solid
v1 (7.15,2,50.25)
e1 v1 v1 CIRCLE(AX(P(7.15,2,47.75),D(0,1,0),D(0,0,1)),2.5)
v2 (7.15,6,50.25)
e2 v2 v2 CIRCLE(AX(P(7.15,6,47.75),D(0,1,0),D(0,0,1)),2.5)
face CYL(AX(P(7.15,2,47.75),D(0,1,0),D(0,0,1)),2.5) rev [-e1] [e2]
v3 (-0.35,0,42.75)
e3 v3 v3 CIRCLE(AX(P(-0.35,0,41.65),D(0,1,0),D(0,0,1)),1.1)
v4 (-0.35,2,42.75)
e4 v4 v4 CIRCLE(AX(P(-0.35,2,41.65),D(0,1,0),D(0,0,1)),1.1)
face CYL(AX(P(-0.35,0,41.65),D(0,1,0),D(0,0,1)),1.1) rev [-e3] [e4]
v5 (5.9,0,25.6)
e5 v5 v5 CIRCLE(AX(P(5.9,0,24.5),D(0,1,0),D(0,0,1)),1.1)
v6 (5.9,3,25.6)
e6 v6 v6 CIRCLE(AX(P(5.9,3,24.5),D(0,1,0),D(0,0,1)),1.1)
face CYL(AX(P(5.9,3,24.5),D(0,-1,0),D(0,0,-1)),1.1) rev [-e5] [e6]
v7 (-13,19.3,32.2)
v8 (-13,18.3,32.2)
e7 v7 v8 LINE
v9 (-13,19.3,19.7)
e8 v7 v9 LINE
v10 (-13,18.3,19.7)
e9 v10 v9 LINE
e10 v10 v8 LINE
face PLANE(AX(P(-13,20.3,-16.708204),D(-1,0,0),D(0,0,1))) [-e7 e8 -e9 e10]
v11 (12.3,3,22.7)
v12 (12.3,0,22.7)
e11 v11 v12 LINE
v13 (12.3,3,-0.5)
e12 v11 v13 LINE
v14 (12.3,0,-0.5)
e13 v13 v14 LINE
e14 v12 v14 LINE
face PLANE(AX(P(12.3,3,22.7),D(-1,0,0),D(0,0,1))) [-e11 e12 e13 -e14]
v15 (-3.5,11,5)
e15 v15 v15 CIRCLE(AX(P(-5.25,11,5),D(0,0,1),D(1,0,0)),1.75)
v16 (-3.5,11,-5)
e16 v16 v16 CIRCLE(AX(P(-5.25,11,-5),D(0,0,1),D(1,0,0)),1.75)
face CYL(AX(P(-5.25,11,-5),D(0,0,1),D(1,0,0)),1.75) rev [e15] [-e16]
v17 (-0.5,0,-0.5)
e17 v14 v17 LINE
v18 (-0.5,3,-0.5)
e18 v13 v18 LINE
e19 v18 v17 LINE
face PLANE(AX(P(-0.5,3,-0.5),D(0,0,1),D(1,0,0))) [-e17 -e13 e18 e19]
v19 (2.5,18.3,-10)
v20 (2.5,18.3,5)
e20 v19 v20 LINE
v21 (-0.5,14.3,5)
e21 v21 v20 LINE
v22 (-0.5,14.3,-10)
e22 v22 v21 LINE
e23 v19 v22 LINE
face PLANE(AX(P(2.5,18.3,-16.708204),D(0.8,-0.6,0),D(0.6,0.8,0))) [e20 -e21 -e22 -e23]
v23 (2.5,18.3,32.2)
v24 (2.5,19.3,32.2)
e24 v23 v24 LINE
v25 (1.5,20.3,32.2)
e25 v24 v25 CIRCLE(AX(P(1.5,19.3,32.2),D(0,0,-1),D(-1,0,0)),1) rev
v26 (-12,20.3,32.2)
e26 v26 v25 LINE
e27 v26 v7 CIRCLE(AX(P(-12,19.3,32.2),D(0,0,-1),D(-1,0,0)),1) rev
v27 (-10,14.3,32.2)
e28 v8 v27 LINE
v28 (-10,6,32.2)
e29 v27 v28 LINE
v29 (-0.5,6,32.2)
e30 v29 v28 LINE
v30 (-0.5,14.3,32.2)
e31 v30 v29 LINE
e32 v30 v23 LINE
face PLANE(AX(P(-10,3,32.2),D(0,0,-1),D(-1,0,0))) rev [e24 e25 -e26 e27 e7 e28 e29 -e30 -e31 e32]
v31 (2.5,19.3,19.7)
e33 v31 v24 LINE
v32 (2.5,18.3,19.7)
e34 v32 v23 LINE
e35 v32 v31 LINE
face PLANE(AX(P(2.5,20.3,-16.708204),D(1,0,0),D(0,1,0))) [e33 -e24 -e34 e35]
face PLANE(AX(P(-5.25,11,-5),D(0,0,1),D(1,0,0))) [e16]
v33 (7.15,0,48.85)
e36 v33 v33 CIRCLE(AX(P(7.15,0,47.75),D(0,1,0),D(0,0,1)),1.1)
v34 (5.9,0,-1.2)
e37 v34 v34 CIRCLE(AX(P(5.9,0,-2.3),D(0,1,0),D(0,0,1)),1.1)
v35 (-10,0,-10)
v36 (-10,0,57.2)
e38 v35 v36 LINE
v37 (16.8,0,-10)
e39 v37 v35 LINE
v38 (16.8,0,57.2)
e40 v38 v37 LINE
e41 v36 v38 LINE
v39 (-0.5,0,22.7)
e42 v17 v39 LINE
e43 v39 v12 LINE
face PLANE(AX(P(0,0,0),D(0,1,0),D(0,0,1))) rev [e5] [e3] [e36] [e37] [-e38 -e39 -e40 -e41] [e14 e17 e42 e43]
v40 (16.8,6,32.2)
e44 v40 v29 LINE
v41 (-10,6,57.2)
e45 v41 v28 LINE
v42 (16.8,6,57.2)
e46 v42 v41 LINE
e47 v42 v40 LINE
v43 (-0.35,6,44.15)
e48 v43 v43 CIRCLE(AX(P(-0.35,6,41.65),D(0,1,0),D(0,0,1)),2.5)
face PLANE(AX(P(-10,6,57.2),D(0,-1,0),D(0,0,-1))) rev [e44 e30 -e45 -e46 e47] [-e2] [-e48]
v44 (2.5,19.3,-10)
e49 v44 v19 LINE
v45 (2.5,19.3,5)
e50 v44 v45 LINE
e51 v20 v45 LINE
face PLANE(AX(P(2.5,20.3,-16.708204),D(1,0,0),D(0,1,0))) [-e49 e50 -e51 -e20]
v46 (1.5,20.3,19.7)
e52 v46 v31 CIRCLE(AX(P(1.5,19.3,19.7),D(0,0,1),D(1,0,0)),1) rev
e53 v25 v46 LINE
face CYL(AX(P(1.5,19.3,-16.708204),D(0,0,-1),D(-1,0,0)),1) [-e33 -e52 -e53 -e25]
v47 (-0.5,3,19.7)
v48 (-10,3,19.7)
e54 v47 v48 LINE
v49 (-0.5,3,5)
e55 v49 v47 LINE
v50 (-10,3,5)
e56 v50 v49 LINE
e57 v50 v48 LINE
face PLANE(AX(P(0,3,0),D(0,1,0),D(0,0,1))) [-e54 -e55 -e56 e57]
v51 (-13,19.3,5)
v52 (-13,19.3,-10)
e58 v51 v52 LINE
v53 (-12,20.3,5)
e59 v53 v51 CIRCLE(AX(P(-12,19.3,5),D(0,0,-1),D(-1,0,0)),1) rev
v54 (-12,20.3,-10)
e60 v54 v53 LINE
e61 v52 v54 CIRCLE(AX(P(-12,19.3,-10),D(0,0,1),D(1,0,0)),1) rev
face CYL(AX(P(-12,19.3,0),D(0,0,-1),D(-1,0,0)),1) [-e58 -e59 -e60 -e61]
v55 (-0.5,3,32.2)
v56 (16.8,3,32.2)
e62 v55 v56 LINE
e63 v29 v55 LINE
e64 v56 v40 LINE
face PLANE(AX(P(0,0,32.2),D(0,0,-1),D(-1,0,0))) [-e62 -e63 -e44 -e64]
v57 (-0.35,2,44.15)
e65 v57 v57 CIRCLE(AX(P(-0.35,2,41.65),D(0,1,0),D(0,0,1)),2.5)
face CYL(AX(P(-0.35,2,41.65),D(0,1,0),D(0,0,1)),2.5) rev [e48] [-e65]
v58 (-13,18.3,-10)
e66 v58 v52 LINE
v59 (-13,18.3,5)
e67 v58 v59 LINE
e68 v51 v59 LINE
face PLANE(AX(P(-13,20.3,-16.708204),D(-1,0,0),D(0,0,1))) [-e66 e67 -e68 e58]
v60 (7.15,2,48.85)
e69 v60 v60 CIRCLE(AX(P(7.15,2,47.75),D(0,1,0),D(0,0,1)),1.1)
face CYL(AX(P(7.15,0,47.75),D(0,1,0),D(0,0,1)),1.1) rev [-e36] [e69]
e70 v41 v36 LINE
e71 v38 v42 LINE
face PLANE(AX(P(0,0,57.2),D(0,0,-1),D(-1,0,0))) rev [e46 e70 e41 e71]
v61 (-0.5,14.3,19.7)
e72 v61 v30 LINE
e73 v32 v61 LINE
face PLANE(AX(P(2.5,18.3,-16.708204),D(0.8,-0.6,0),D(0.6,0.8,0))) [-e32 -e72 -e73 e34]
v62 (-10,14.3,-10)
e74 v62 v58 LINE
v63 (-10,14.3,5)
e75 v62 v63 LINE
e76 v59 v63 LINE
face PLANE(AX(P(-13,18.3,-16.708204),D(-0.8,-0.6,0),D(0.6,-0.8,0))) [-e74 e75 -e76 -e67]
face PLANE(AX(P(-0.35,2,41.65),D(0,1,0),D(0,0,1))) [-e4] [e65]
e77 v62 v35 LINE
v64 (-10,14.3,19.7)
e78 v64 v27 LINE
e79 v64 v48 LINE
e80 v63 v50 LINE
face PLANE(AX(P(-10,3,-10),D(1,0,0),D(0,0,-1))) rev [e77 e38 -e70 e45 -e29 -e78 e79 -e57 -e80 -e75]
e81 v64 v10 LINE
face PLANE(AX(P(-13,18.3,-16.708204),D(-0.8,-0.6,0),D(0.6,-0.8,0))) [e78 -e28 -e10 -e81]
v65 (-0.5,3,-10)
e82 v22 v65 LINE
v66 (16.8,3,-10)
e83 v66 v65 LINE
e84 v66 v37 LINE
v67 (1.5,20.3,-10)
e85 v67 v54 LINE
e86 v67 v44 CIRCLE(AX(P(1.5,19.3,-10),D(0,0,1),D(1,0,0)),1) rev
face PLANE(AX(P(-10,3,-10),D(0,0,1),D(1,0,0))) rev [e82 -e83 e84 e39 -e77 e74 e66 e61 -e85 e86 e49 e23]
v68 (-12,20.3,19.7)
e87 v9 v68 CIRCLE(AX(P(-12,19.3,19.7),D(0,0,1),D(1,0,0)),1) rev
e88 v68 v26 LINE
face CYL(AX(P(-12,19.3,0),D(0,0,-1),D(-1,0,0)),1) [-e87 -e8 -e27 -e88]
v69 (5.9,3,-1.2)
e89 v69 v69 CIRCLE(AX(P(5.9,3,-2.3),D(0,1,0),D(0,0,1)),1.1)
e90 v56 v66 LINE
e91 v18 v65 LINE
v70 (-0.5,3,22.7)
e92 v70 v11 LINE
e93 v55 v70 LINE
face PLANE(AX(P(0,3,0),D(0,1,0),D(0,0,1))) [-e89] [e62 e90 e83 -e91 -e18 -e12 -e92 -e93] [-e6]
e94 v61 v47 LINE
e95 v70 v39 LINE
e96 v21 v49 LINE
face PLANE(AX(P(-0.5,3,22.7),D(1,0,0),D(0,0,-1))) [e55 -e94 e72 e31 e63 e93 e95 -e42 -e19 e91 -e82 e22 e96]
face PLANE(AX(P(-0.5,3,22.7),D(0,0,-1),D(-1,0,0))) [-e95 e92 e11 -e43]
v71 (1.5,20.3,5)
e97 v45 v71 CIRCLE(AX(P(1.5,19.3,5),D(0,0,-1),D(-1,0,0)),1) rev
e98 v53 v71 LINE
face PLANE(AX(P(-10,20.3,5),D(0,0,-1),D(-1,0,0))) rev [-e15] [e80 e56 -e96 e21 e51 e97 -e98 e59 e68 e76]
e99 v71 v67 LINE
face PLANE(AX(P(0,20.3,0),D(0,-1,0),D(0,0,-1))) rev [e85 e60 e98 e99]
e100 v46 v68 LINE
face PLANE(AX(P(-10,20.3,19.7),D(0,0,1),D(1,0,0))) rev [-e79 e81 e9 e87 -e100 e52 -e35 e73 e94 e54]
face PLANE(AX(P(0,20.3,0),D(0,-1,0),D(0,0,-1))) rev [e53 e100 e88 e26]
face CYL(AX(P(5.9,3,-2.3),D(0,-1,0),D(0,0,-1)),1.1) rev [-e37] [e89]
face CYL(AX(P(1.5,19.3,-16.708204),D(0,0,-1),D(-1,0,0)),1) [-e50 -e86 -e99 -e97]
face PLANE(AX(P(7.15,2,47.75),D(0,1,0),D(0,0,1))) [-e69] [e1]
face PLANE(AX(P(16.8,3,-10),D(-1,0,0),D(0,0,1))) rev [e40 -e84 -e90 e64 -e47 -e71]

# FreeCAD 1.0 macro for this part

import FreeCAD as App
import Part
import Sketcher
from FreeCAD import Vector
Q = App.Units.Quantity


def edges_at(feature, points):
    """Names of the edges that pass closest to the given points."""
    edges = feature.Shape.Edges
    near = lambda p: min(range(len(edges)), key=lambda i: edges[i].distToShape(Part.Vertex(*p))[0])
    return sorted({f"Edge{near(p) + 1}" for p in points})

doc = App.newDocument("Part")
params = doc.addObject("Spreadsheet::Sheet", "Params")
for row, (alias, value) in enumerate([
    ("sketch1_diameter", "2.2 mm"),
    ("sketch1_width", "26.8 mm"),
    ("sketch1_width2", "12.8 mm"),
    ("sketch1_height", "42.2 mm"),
    ("sketch1_height2", "23.2 mm"),
    ("pad1_length", "3 mm"),
    ("sketch2_height", "15 mm"),
    ("sketch2_width", "9.5 mm"),
    ("sketch2_height2", "12.5 mm"),
    ("pad2_length", "17.3 mm"),
    ("sketch3_diameter", "3.5 mm"),
    ("pocket1_length", "10 mm"),
    ("sketch4_width", "3 mm"),
    ("sketch4_height", "6 mm"),
    ("sketch4_height2", "2 mm"),
    ("pad3_length", "42.2 mm"),
    ("sketch5_width", "15.5 mm"),
    ("sketch5_height", "14.7 mm"),
    ("pocket2_length", "17.3 mm"),
    ("fillet_radius", "1 mm"),
    ("sketch6_height", "6 mm"),
    ("sketch6_width", "26.8 mm"),
    ("pad4_length", "25 mm"),
    ("sketch7_diameter", "5 mm"),
    ("pocket3_length", "4 mm"),
    ("sketch8_diameter", "2.2 mm"),
], start=1):
    params.set(f"A{row}", alias)
    params.set(f"B{row}", "=" + value)
    params.setAlias(f"B{row}", alias)

body = doc.addObject("PartDesign::Body", "Body")

# Sketch on XZ plane
sketch1 = doc.addObject("Sketcher::SketchObject", "Sketch")
body.addObject(sketch1)
sketch1.AttachmentSupport = (doc.XZ_Plane, [""])
sketch1.MapMode = "FlatFace"
sketch1.addGeometry([
    Part.LineSegment(Vector(-10, -10, 0), Vector(-10, 32.2, 0)),  # 0
    Part.LineSegment(Vector(-10, 32.2, 0), Vector(16.8, 32.2, 0)),  # 1
    Part.LineSegment(Vector(16.8, 32.2, 0), Vector(16.8, -10, 0)),  # 2
    Part.LineSegment(Vector(16.8, -10, 0), Vector(-10, -10, 0)),  # 3
    Part.Circle(Vector(5.9, 24.5, 0), Vector(0, 0, 1), 1.1),  # 4
    Part.LineSegment(Vector(12.3, 22.7, 0), Vector(-0.5, 22.7, 0)),  # 5
    Part.LineSegment(Vector(-0.5, 22.7, 0), Vector(-0.5, -0.5, 0)),  # 6
    Part.LineSegment(Vector(-0.5, -0.5, 0), Vector(12.3, -0.5, 0)),  # 7
    Part.LineSegment(Vector(12.3, -0.5, 0), Vector(12.3, 22.7, 0)),  # 8
    Part.Circle(Vector(5.9, -2.3, 0), Vector(0, 0, 1), 1.1),  # 9
], False)
sketch1.addConstraint([
    Sketcher.Constraint("Coincident", 0, 2, 1, 1),
    Sketcher.Constraint("Coincident", 1, 2, 2, 1),
    Sketcher.Constraint("Coincident", 2, 2, 3, 1),
    Sketcher.Constraint("Coincident", 3, 2, 0, 1),
    Sketcher.Constraint("Coincident", 5, 2, 6, 1),
    Sketcher.Constraint("Coincident", 6, 2, 7, 1),
    Sketcher.Constraint("Coincident", 7, 2, 8, 1),
    Sketcher.Constraint("Coincident", 8, 2, 5, 1),
    Sketcher.Constraint("Vertical", 0),
    Sketcher.Constraint("Horizontal", 1),
    Sketcher.Constraint("Vertical", 2),
    Sketcher.Constraint("Horizontal", 3),
    Sketcher.Constraint("Horizontal", 5),
    Sketcher.Constraint("Vertical", 6),
    Sketcher.Constraint("Horizontal", 7),
    Sketcher.Constraint("Vertical", 8),
    Sketcher.Constraint("Equal", 4, 9),
    Sketcher.Constraint("Vertical", 4, 3, 9, 3),
    Sketcher.Constraint("Diameter", 4, Q("2.2 mm")),
    Sketcher.Constraint("DistanceX", 1, 1, 1, 2, Q("26.8 mm")),
    Sketcher.Constraint("DistanceX", 5, 2, 5, 1, Q("12.8 mm")),
    Sketcher.Constraint("DistanceY", 0, 1, 0, 2, Q("42.2 mm")),
    Sketcher.Constraint("DistanceY", 6, 2, 6, 1, Q("23.2 mm")),
    Sketcher.Constraint("DistanceX", 0, 2, -1, 1, Q("10 mm")),
    Sketcher.Constraint("DistanceY", 2, 2, -1, 1, Q("10 mm")),
    Sketcher.Constraint("DistanceY", 9, 3, 5, 2, Q("25 mm")),
    Sketcher.Constraint("DistanceY", 6, 2, 4, 3, Q("25 mm")),
    Sketcher.Constraint("DistanceX", -1, 1, 4, 3, Q("5.9 mm")),
    Sketcher.Constraint("DistanceY", -1, 1, 4, 3, Q("24.5 mm")),
    Sketcher.Constraint("DistanceX", 5, 2, -1, 1, Q("0.5 mm")),
])
sketch1.setExpression("Constraints[18]", "Params.sketch1_diameter")
sketch1.setExpression("Constraints[19]", "Params.sketch1_width")
sketch1.setExpression("Constraints[20]", "Params.sketch1_width2")
sketch1.setExpression("Constraints[21]", "Params.sketch1_height")
sketch1.setExpression("Constraints[22]", "Params.sketch1_height2")
pad1 = doc.addObject("PartDesign::Pad", "Pad")
body.addObject(pad1)
pad1.Profile = sketch1
pad1.setExpression("Length", "Params.pad1_length")
pad1.Reversed = True

# Sketch on XZ plane
sketch2 = doc.addObject("Sketcher::SketchObject", "Sketch001")
body.addObject(sketch2)
sketch2.AttachmentSupport = (doc.XZ_Plane, [""])
sketch2.MapMode = "FlatFace"
sketch2.AttachmentOffset = App.Placement(Vector(0, 0, -3), App.Rotation())
sketch2.addGeometry([
    Part.LineSegment(Vector(-10, -10, 0), Vector(-10, 5, 0)),  # 0
    Part.LineSegment(Vector(-10, 5, 0), Vector(0, 5, 0)),  # 1
    Part.LineSegment(Vector(0, 5, 0), Vector(0, -10, 0)),  # 2
    Part.LineSegment(Vector(0, -10, 0), Vector(-10, -10, 0)),  # 3
    Part.LineSegment(Vector(-10, 20, 0), Vector(-10, 32, 0)),  # 4
    Part.LineSegment(Vector(-10, 32, 0), Vector(0, 32, 0)),  # 5
    Part.LineSegment(Vector(0, 32, 0), Vector(0, 20, 0)),  # 6
    Part.LineSegment(Vector(0, 20, 0), Vector(-10, 20, 0)),  # 7
], False)
sketch2.addConstraint([
    Sketcher.Constraint("Coincident", 0, 2, 1, 1),
    Sketcher.Constraint("Coincident", 1, 2, 2, 1),
    Sketcher.Constraint("Coincident", 2, 2, 3, 1),
    Sketcher.Constraint("Coincident", 3, 2, 0, 1),
    Sketcher.Constraint("Coincident", 4, 2, 5, 1),
    Sketcher.Constraint("Coincident", 5, 2, 6, 1),
    Sketcher.Constraint("Coincident", 6, 2, 7, 1),
    Sketcher.Constraint("Coincident", 7, 2, 4, 1),
    Sketcher.Constraint("Vertical", 0),
    Sketcher.Constraint("Horizontal", 1),
    Sketcher.Constraint("Vertical", 2),
    Sketcher.Constraint("Horizontal", 3),
    Sketcher.Constraint("Vertical", 4),
    Sketcher.Constraint("Horizontal", 5),
    Sketcher.Constraint("Vertical", 6),
    Sketcher.Constraint("Horizontal", 7),
    Sketcher.Constraint("Vertical", 3, 2, 4, 2),
    Sketcher.Constraint("Vertical", 2, 2, 5, 2),
    Sketcher.Constraint("DistanceY", 0, 1, 0, 2, Q("15 mm")),
    Sketcher.Constraint("DistanceX", 1, 1, 1, 2, Q("9.5 mm")),
    Sketcher.Constraint("DistanceY", 4, 1, 4, 2, Q("12.5 mm")),
    Sketcher.Constraint("DistanceX", 0, 2, -1, 1, Q("10 mm")),
    Sketcher.Constraint("DistanceY", -1, 1, 0, 2, Q("5 mm")),
    Sketcher.Constraint("DistanceY", -1, 1, 4, 2, Q("32.2 mm")),
])
sketch2.setExpression("Constraints[18]", "Params.sketch2_height")
sketch2.setExpression("Constraints[19]", "Params.sketch2_width")
sketch2.setExpression("Constraints[20]", "Params.sketch2_height2")
pad2 = doc.addObject("PartDesign::Pad", "Pad001")
body.addObject(pad2)
pad2.Profile = sketch2
pad2.setExpression("Length", "Params.pad2_length")
pad2.Reversed = True

# Sketch on XY plane
sketch3 = doc.addObject("Sketcher::SketchObject", "Sketch002")
body.addObject(sketch3)
sketch3.AttachmentSupport = (doc.XY_Plane, [""])
sketch3.MapMode = "FlatFace"
sketch3.AttachmentOffset = App.Placement(Vector(0, 0, 5), App.Rotation())
sketch3.addGeometry(Part.Circle(Vector(-5.2, 11, 0), Vector(0, 0, 1), 1.8), False)
sketch3.addConstraint([
    Sketcher.Constraint("Diameter", 0, Q("3.5 mm")),
    Sketcher.Constraint("DistanceY", -1, 1, 0, 3, Q("11 mm")),
    Sketcher.Constraint("DistanceX", 0, 3, -1, 1, Q("5.25 mm")),
])
sketch3.setExpression("Constraints[0]", "Params.sketch3_diameter")
pocket1 = doc.addObject("PartDesign::Pocket", "Pocket")
body.addObject(pocket1)
pocket1.Profile = sketch3
pocket1.setExpression("Length", "Params.pocket1_length")

# Sketch on XY plane
sketch4 = doc.addObject("Sketcher::SketchObject", "Sketch003")
body.addObject(sketch4)
sketch4.AttachmentSupport = (doc.XY_Plane, [""])
sketch4.MapMode = "FlatFace"
sketch4.AttachmentOffset = App.Placement(Vector(0, 0, -10), App.Rotation())
sketch4.addGeometry([
    Part.LineSegment(Vector(2.5, 20.3, 0), Vector(-0.5, 20.3, 0)),  # 0
    Part.LineSegment(Vector(-0.5, 20.3, 0), Vector(-0.5, 14.3, 0)),  # 1
    Part.LineSegment(Vector(-0.5, 14.3, 0), Vector(2.5, 18.3, 0)),  # 2
    Part.LineSegment(Vector(2.5, 18.3, 0), Vector(2.5, 20.3, 0)),  # 3
    Part.LineSegment(Vector(-10, 14.3, 0), Vector(-10, 20.3, 0)),  # 4
    Part.LineSegment(Vector(-10, 20.3, 0), Vector(-13, 20.3, 0)),  # 5
    Part.LineSegment(Vector(-13, 20.3, 0), Vector(-13, 18.3, 0)),  # 6
    Part.LineSegment(Vector(-13, 18.3, 0), Vector(-10, 14.3, 0)),  # 7
], False)
sketch4.addConstraint([
    Sketcher.Constraint("Coincident", 0, 2, 1, 1),
    Sketcher.Constraint("Coincident", 1, 2, 2, 1),
    Sketcher.Constraint("Coincident", 2, 2, 3, 1),
    Sketcher.Constraint("Coincident", 3, 2, 0, 1),
    Sketcher.Constraint("Coincident", 4, 2, 5, 1),
    Sketcher.Constraint("Coincident", 5, 2, 6, 1),
    Sketcher.Constraint("Coincident", 6, 2, 7, 1),
    Sketcher.Constraint("Coincident", 7, 2, 4, 1),
    Sketcher.Constraint("Horizontal", 0),
    Sketcher.Constraint("Vertical", 1),
    Sketcher.Constraint("Vertical", 3),
    Sketcher.Constraint("Vertical", 4),
    Sketcher.Constraint("Horizontal", 5),
    Sketcher.Constraint("Vertical", 6),
    Sketcher.Constraint("Horizontal", 3, 2, 4, 2),
    Sketcher.Constraint("Horizontal", 2, 2, 6, 2),
    Sketcher.Constraint("Horizontal", 1, 2, 7, 2),
    Sketcher.Constraint("Equal", 0, 5),
    Sketcher.Constraint("DistanceX", 0, 2, 0, 1, Q("3 mm")),
    Sketcher.Constraint("DistanceY", 1, 2, 1, 1, Q("6 mm")),
    Sketcher.Constraint("DistanceY", 3, 1, 3, 2, Q("2 mm")),
    Sketcher.Constraint("DistanceX", 4, 2, -1, 1, Q("10 mm")),
    Sketcher.Constraint("DistanceX", 0, 2, -1, 1, Q("0.5 mm")),
    Sketcher.Constraint("DistanceY", -1, 1, 0, 2, Q("20.3 mm")),
])
sketch4.setExpression("Constraints[18]", "Params.sketch4_width")
sketch4.setExpression("Constraints[19]", "Params.sketch4_height")
sketch4.setExpression("Constraints[20]", "Params.sketch4_height2")
pad3 = doc.addObject("PartDesign::Pad", "Pad002")
body.addObject(pad3)
pad3.Profile = sketch4
pad3.setExpression("Length", "Params.pad3_length")

# Sketch on XZ plane
sketch5 = doc.addObject("Sketcher::SketchObject", "Sketch004")
body.addObject(sketch5)
sketch5.AttachmentSupport = (doc.XZ_Plane, [""])
sketch5.MapMode = "FlatFace"
sketch5.AttachmentOffset = App.Placement(Vector(0, 0, -20.3), App.Rotation())
sketch5.addGeometry([
    Part.LineSegment(Vector(-13, 5, 0), Vector(-13, 20, 0)),
    Part.LineSegment(Vector(-13, 20, 0), Vector(2, 20, 0)),
    Part.LineSegment(Vector(2, 20, 0), Vector(2, 5, 0)),
    Part.LineSegment(Vector(2, 5, 0), Vector(-13, 5, 0)),
], False)
sketch5.addConstraint([
    Sketcher.Constraint("Coincident", 0, 2, 1, 1),
    Sketcher.Constraint("Coincident", 1, 2, 2, 1),
    Sketcher.Constraint("Coincident", 2, 2, 3, 1),
    Sketcher.Constraint("Coincident", 3, 2, 0, 1),
    Sketcher.Constraint("Vertical", 0),
    Sketcher.Constraint("Horizontal", 1),
    Sketcher.Constraint("Vertical", 2),
    Sketcher.Constraint("Horizontal", 3),
    Sketcher.Constraint("DistanceX", 1, 1, 1, 2, Q("15.5 mm")),
    Sketcher.Constraint("DistanceY", 0, 1, 0, 2, Q("14.7 mm")),
    Sketcher.Constraint("DistanceX", 0, 2, -1, 1, Q("13 mm")),
    Sketcher.Constraint("DistanceY", -1, 1, 2, 2, Q("5 mm")),
])
sketch5.setExpression("Constraints[8]", "Params.sketch5_width")
sketch5.setExpression("Constraints[9]", "Params.sketch5_height")
pocket2 = doc.addObject("PartDesign::Pocket", "Pocket001")
body.addObject(pocket2)
pocket2.Profile = sketch5
pocket2.setExpression("Length", "Params.pocket2_length")
pocket2.Reversed = True
doc.recompute()

fillet = doc.addObject("PartDesign::Fillet", "Fillet")
body.addObject(fillet)
fillet.Base = (pocket2, edges_at(pocket2, [
    (-13, 20.3, 25.95),
    (2.5, 20.3, 25.95),
    (2.5, 20.3, -2.5),
    (-13, 20.3, -2.5),
]))
fillet.setExpression("Radius", "Params.fillet_radius")

# Sketch on XY plane
sketch6 = doc.addObject("Sketcher::SketchObject", "Sketch005")
body.addObject(sketch6)
sketch6.AttachmentSupport = (doc.XY_Plane, [""])
sketch6.MapMode = "FlatFace"
sketch6.AttachmentOffset = App.Placement(Vector(0, 0, 32.2), App.Rotation())
sketch6.addGeometry([
    Part.LineSegment(Vector(-10, 6, 0), Vector(-10, 0, 0)),
    Part.LineSegment(Vector(-10, 0, 0), Vector(17, 0, 0)),
    Part.LineSegment(Vector(17, 0, 0), Vector(17, 6, 0)),
    Part.LineSegment(Vector(17, 6, 0), Vector(-10, 6, 0)),
], False)
sketch6.addConstraint([
    Sketcher.Constraint("Coincident", 0, 2, 1, 1),
    Sketcher.Constraint("Coincident", 1, 2, 2, 1),
    Sketcher.Constraint("Coincident", 2, 2, 3, 1),
    Sketcher.Constraint("Coincident", 3, 2, 0, 1),
    Sketcher.Constraint("Vertical", 0),
    Sketcher.Constraint("Horizontal", 1),
    Sketcher.Constraint("Vertical", 2),
    Sketcher.Constraint("Horizontal", 3),
    Sketcher.Constraint("PointOnObject", 0, 2, -1),
    Sketcher.Constraint("DistanceY", 0, 2, 0, 1, Q("6 mm")),
    Sketcher.Constraint("DistanceX", 1, 1, 1, 2, Q("26.8 mm")),
    Sketcher.Constraint("DistanceX", 0, 2, -1, 1, Q("10 mm")),
])
sketch6.setExpression("Constraints[9]", "Params.sketch6_height")
sketch6.setExpression("Constraints[10]", "Params.sketch6_width")
pad4 = doc.addObject("PartDesign::Pad", "Pad003")
body.addObject(pad4)
pad4.Profile = sketch6
pad4.setExpression("Length", "Params.pad4_length")

# Sketch on XZ plane
sketch7 = doc.addObject("Sketcher::SketchObject", "Sketch006")
body.addObject(sketch7)
sketch7.AttachmentSupport = (doc.XZ_Plane, [""])
sketch7.MapMode = "FlatFace"
sketch7.AttachmentOffset = App.Placement(Vector(0, 0, -6), App.Rotation())
sketch7.addGeometry([
    Part.Circle(Vector(7.2, 47.8, 0), Vector(0, 0, 1), 2.5),
    Part.Circle(Vector(-0.3, 41.6, 0), Vector(0, 0, 1), 2.5),
], False)
sketch7.addConstraint([
    Sketcher.Constraint("Equal", 0, 1),
    Sketcher.Constraint("Diameter", 0, Q("5 mm")),
    Sketcher.Constraint("DistanceX", 1, 3, 0, 3, Q("7.5 mm")),
    Sketcher.Constraint("DistanceY", 1, 3, 0, 3, Q("6.1 mm")),
    Sketcher.Constraint("DistanceX", -1, 1, 0, 3, Q("7.15 mm")),
    Sketcher.Constraint("DistanceY", -1, 1, 0, 3, Q("47.75 mm")),
])
sketch7.setExpression("Constraints[1]", "Params.sketch7_diameter")
pocket3 = doc.addObject("PartDesign::Pocket", "Pocket002")
body.addObject(pocket3)
pocket3.Profile = sketch7
pocket3.setExpression("Length", "Params.pocket3_length")
pocket3.Reversed = True

# Sketch on XZ plane
sketch8 = doc.addObject("Sketcher::SketchObject", "Sketch007")
body.addObject(sketch8)
sketch8.AttachmentSupport = (doc.XZ_Plane, [""])
sketch8.MapMode = "FlatFace"
sketch8.AttachmentOffset = App.Placement(Vector(0, 0, -2), App.Rotation())
sketch8.addGeometry([
    Part.Circle(Vector(-0.3, 41.6, 0), Vector(0, 0, 1), 1.1),
    Part.Circle(Vector(7.2, 47.8, 0), Vector(0, 0, 1), 1.1),
], False)
sketch8.addConstraint([
    Sketcher.Constraint("Equal", 0, 1),
    Sketcher.Constraint("Diameter", 0, Q("2.2 mm")),
    Sketcher.Constraint("DistanceX", 0, 3, 1, 3, Q("7.5 mm")),
    Sketcher.Constraint("DistanceY", 0, 3, 1, 3, Q("6.1 mm")),
    Sketcher.Constraint("DistanceX", 0, 3, -1, 1, Q("0.35 mm")),
    Sketcher.Constraint("DistanceY", -1, 1, 0, 3, Q("41.65 mm")),
])
sketch8.setExpression("Constraints[1]", "Params.sketch8_diameter")
pocket4 = doc.addObject("PartDesign::Pocket", "Pocket003")
body.addObject(pocket4)
pocket4.Profile = sketch8
pocket4.Type = "ThroughAll"
pocket4.Reversed = True

doc.recompute()
